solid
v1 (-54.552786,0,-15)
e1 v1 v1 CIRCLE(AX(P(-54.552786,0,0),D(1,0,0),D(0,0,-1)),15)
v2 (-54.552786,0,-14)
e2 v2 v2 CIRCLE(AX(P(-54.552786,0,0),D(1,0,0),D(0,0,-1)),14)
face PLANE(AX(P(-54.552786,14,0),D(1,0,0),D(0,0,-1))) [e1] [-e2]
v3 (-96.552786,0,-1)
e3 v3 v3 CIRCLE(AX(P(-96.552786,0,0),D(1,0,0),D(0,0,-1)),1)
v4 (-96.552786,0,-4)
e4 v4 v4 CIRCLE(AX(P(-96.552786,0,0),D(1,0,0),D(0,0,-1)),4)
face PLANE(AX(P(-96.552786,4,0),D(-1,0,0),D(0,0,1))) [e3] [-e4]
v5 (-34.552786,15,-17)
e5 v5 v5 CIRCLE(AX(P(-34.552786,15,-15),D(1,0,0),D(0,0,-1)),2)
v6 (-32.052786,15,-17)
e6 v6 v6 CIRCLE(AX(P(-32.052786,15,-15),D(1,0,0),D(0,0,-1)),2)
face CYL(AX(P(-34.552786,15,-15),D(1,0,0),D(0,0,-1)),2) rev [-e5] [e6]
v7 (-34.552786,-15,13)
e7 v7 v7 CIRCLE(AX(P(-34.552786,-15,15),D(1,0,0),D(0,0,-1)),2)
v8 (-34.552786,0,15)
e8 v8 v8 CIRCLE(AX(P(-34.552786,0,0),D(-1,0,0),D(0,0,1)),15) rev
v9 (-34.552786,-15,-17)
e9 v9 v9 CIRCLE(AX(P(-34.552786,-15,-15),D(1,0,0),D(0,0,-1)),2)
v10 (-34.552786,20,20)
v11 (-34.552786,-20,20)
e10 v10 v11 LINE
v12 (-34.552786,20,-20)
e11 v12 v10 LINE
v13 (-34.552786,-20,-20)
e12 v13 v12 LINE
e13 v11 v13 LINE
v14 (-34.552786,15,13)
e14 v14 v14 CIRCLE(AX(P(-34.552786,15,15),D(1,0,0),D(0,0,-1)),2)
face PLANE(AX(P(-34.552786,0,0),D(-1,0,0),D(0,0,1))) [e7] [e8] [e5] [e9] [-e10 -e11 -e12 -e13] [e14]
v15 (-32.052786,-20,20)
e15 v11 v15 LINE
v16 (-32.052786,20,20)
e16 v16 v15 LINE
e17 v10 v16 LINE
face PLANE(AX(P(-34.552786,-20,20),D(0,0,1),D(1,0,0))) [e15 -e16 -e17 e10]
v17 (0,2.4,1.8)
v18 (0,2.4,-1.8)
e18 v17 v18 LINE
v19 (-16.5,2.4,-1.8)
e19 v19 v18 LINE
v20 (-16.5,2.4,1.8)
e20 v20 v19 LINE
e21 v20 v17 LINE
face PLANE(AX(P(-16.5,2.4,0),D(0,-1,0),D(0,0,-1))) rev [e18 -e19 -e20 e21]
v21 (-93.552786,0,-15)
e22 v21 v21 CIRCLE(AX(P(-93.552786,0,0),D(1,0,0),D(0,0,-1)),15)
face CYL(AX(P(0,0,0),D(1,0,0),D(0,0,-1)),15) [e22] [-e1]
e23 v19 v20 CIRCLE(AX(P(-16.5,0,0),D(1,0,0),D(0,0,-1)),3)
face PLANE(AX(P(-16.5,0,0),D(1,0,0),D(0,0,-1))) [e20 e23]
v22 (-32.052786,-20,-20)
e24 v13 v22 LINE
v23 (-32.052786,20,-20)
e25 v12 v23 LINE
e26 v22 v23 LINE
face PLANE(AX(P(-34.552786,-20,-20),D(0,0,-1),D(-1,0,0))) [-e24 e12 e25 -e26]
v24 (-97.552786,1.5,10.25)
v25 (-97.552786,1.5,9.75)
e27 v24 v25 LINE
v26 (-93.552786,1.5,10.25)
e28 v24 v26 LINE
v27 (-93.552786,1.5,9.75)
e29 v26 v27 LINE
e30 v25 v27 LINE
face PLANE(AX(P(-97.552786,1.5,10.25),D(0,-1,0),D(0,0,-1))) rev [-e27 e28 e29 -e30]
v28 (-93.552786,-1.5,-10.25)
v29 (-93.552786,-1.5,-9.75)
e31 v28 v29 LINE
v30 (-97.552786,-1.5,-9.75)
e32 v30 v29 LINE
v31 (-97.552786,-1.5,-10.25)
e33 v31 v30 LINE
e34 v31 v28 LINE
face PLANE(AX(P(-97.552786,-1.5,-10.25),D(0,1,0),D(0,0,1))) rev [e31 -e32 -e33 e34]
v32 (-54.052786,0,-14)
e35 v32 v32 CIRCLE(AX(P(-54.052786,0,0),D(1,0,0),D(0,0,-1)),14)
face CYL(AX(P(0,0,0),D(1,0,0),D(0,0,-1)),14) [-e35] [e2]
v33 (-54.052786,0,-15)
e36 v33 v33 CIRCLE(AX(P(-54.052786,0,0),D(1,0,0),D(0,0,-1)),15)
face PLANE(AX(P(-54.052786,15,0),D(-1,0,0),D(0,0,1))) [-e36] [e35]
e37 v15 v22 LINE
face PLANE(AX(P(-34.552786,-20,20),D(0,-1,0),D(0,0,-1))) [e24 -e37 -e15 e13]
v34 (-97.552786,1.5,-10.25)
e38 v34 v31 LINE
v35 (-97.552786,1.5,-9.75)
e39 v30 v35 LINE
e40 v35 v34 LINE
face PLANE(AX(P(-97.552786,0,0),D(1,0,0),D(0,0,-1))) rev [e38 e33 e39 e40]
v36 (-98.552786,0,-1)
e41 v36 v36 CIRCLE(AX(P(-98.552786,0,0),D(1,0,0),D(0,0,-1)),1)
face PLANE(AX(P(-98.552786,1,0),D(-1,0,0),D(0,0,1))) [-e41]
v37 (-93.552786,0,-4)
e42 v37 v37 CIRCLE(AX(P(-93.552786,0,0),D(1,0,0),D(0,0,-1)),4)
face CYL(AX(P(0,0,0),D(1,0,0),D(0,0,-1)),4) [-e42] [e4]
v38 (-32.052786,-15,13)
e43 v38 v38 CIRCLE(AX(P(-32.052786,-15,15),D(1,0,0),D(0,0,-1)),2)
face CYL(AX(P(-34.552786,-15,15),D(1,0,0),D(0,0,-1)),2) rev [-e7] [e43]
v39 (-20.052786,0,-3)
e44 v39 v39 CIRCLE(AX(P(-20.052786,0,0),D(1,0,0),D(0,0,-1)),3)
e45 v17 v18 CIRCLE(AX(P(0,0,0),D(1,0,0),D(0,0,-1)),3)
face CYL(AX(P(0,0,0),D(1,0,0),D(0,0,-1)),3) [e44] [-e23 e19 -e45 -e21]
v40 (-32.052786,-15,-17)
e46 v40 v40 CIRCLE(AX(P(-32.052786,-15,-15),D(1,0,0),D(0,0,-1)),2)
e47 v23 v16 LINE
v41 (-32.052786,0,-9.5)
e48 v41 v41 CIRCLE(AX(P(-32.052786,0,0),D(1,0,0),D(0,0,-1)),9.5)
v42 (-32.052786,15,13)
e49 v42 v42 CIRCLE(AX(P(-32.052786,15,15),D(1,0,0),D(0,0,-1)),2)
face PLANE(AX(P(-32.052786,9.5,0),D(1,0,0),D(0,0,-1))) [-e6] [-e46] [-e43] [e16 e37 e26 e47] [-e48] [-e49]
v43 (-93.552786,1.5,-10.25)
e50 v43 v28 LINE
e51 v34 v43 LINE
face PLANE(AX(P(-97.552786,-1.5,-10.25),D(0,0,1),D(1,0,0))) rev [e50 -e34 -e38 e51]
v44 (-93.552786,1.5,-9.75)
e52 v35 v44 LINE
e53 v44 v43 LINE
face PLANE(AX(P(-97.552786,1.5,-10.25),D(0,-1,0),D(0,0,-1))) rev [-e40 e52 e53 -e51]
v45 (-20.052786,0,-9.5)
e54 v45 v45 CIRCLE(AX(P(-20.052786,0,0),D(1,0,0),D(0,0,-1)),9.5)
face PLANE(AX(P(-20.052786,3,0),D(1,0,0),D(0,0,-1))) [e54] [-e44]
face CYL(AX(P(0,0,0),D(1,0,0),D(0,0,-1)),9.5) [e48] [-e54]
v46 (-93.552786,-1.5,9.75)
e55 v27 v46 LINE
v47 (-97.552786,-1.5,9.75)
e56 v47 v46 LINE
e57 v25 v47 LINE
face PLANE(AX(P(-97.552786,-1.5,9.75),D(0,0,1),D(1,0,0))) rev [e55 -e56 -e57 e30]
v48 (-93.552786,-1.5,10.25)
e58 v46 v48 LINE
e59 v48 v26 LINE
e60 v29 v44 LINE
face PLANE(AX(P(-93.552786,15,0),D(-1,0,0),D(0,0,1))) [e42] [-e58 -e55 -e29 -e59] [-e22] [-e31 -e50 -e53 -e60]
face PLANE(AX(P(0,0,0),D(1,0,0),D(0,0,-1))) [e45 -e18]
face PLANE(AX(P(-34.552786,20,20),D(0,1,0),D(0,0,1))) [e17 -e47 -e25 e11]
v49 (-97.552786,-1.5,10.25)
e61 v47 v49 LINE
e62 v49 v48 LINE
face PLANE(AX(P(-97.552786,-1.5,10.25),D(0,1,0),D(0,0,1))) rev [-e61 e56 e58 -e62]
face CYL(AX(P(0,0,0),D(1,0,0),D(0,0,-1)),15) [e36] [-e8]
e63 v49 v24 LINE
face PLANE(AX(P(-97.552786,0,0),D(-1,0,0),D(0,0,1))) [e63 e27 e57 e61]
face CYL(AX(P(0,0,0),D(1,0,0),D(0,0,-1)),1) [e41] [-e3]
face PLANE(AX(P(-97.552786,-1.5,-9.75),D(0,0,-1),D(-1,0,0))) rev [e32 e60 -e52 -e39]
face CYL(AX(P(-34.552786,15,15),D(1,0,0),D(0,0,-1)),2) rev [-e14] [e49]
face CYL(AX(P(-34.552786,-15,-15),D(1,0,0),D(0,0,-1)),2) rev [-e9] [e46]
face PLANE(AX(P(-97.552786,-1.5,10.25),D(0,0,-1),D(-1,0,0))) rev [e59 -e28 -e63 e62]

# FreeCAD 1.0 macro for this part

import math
import FreeCAD as App
import Part
import Sketcher
from FreeCAD import Vector
Q = App.Units.Quantity

doc = App.newDocument("Part")
body = doc.addObject("PartDesign::Body", "Body")

# Sketch on XY plane
sketch1 = body.newObject("Sketcher::SketchObject", "Sketch")
sketch1.AttachmentSupport = (doc.getObject("XY_Plane"), [""])
sketch1.MapMode = "FlatFace"
sketch1.addGeometry(Part.LineSegment(Vector(-98.552786, 0, 0), Vector(0, 0, 0)), False)
sketch1.addGeometry(Part.LineSegment(Vector(0, 0, 0), Vector(0, 3, 0)), False)
sketch1.addGeometry(Part.LineSegment(Vector(0, 3, 0), Vector(-20.052786, 3, 0)), False)
sketch1.addGeometry(Part.LineSegment(Vector(-20.052786, 3, 0), Vector(-20.052786, 9.5, 0)), False)
sketch1.addGeometry(Part.LineSegment(Vector(-20.052786, 9.5, 0), Vector(-32.052786, 9.5, 0)), False)
sketch1.addGeometry(Part.LineSegment(Vector(-32.052786, 9.5, 0), Vector(-32.052786, 15, 0)), False)
sketch1.addGeometry(Part.LineSegment(Vector(-32.052786, 15, 0), Vector(-54.052786, 15, 0)), False)
sketch1.addGeometry(Part.LineSegment(Vector(-54.052786, 15, 0), Vector(-54.052786, 14, 0)), False)
sketch1.addGeometry(Part.LineSegment(Vector(-54.052786, 14, 0), Vector(-54.552786, 14, 0)), False)
sketch1.addGeometry(Part.LineSegment(Vector(-54.552786, 14, 0), Vector(-54.552786, 15, 0)), False)
sketch1.addGeometry(Part.LineSegment(Vector(-54.552786, 15, 0), Vector(-93.552786, 15, 0)), False)
sketch1.addGeometry(Part.LineSegment(Vector(-93.552786, 15, 0), Vector(-93.552786, 4, 0)), False)
sketch1.addGeometry(Part.LineSegment(Vector(-93.552786, 4, 0), Vector(-96.552786, 4, 0)), False)
sketch1.addGeometry(Part.LineSegment(Vector(-96.552786, 4, 0), Vector(-96.552786, 1, 0)), False)
sketch1.addGeometry(Part.LineSegment(Vector(-96.552786, 1, 0), Vector(-98.552786, 1, 0)), False)
sketch1.addGeometry(Part.LineSegment(Vector(-98.552786, 1, 0), Vector(-98.552786, 0, 0)), False)
sketch1.addConstraint(Sketcher.Constraint("Coincident", 0, 2, 1, 1))
sketch1.addConstraint(Sketcher.Constraint("Coincident", 1, 2, 2, 1))
sketch1.addConstraint(Sketcher.Constraint("Coincident", 2, 2, 3, 1))
sketch1.addConstraint(Sketcher.Constraint("Coincident", 3, 2, 4, 1))
sketch1.addConstraint(Sketcher.Constraint("Coincident", 4, 2, 5, 1))
sketch1.addConstraint(Sketcher.Constraint("Coincident", 5, 2, 6, 1))
sketch1.addConstraint(Sketcher.Constraint("Coincident", 6, 2, 7, 1))
sketch1.addConstraint(Sketcher.Constraint("Coincident", 7, 2, 8, 1))
sketch1.addConstraint(Sketcher.Constraint("Coincident", 8, 2, 9, 1))
sketch1.addConstraint(Sketcher.Constraint("Coincident", 9, 2, 10, 1))
sketch1.addConstraint(Sketcher.Constraint("Coincident", 10, 2, 11, 1))
sketch1.addConstraint(Sketcher.Constraint("Coincident", 11, 2, 12, 1))
sketch1.addConstraint(Sketcher.Constraint("Coincident", 12, 2, 13, 1))
sketch1.addConstraint(Sketcher.Constraint("Coincident", 13, 2, 14, 1))
sketch1.addConstraint(Sketcher.Constraint("Coincident", 14, 2, 15, 1))
sketch1.addConstraint(Sketcher.Constraint("Coincident", 15, 2, 0, 1))
sketch1.addConstraint(Sketcher.Constraint("Horizontal", 0))
sketch1.addConstraint(Sketcher.Constraint("Vertical", 1))
sketch1.addConstraint(Sketcher.Constraint("Horizontal", 2))
sketch1.addConstraint(Sketcher.Constraint("Vertical", 3))
sketch1.addConstraint(Sketcher.Constraint("Horizontal", 4))
sketch1.addConstraint(Sketcher.Constraint("Vertical", 5))
sketch1.addConstraint(Sketcher.Constraint("Horizontal", 6))
sketch1.addConstraint(Sketcher.Constraint("Vertical", 7))
sketch1.addConstraint(Sketcher.Constraint("Horizontal", 8))
sketch1.addConstraint(Sketcher.Constraint("Vertical", 9))
sketch1.addConstraint(Sketcher.Constraint("Horizontal", 10))
sketch1.addConstraint(Sketcher.Constraint("Vertical", 11))
sketch1.addConstraint(Sketcher.Constraint("Horizontal", 12))
sketch1.addConstraint(Sketcher.Constraint("Vertical", 13))
sketch1.addConstraint(Sketcher.Constraint("Horizontal", 14))
sketch1.addConstraint(Sketcher.Constraint("Vertical", 15))
sketch1.addConstraint(Sketcher.Constraint("Coincident", 0, 2, -1, 1))
sketch1.addConstraint(Sketcher.Constraint("Horizontal", 6, 2, 9, 2))
sketch1.addConstraint(Sketcher.Constraint("Equal", 12, 1))
sketch1.addConstraint(Sketcher.Constraint("Equal", 1, 13))
sketch1.addConstraint(Sketcher.Constraint("Equal", 9, 15))
sketch1.addConstraint(Sketcher.Constraint("DistanceX", 4, 2, 4, 1, Q("12 mm")))
sketch1.addConstraint(Sketcher.Constraint("DistanceX", 6, 2, 6, 1, Q("22 mm")))
sketch1.addConstraint(Sketcher.Constraint("DistanceX", 10, 2, 10, 1, Q("39 mm")))
sketch1.addConstraint(Sketcher.Constraint("DistanceX", 12, 2, 12, 1, Q("3 mm")))
sketch1.addConstraint(Sketcher.Constraint("DistanceX", 14, 2, 14, 1, Q("2 mm")))
sketch1.addConstraint(Sketcher.Constraint("DistanceY", 7, 2, 7, 1, Q("1 mm")))
sketch1.addConstraint(Sketcher.Constraint("DistanceY", 11, 2, 11, 1, Q("11 mm")))
sketch1.addConstraint(Sketcher.Constraint("DistanceX", 8, 2, 8, 1, Q("0.5 mm")))
sketch1.addConstraint(Sketcher.Constraint("DistanceY", 3, 1, 3, 2, Q("6.5 mm")))
sketch1.addConstraint(Sketcher.Constraint("DistanceX", 0, 1, 0, 2, Q("98.552786 mm")))
revolution = body.newObject("PartDesign::Revolution", "Revolution")
revolution.Profile = sketch1
revolution.ReferenceAxis = (sketch1, ["H_Axis"])
revolution.Angle = 360

# Sketch on YZ plane
sketch2 = body.newObject("Sketcher::SketchObject", "Sketch001")
sketch2.AttachmentSupport = (doc.getObject("YZ_Plane"), [""])
sketch2.MapMode = "FlatFace"
sketch2.AttachmentOffset = App.Placement(Vector(0, 0, -32.052786), App.Rotation())
sketch2.addGeometry(Part.LineSegment(Vector(20, 20, 0), Vector(-20, 20, 0)), False)
sketch2.addGeometry(Part.LineSegment(Vector(-20, 20, 0), Vector(-20, -20, 0)), False)
sketch2.addGeometry(Part.LineSegment(Vector(-20, -20, 0), Vector(20, -20, 0)), False)
sketch2.addGeometry(Part.LineSegment(Vector(20, -20, 0), Vector(20, 20, 0)), False)
sketch2.addConstraint(Sketcher.Constraint("Coincident", 0, 2, 1, 1))
sketch2.addConstraint(Sketcher.Constraint("Coincident", 1, 2, 2, 1))
sketch2.addConstraint(Sketcher.Constraint("Coincident", 2, 2, 3, 1))
sketch2.addConstraint(Sketcher.Constraint("Coincident", 3, 2, 0, 1))
sketch2.addConstraint(Sketcher.Constraint("Horizontal", 0))
sketch2.addConstraint(Sketcher.Constraint("Vertical", 1))
sketch2.addConstraint(Sketcher.Constraint("Horizontal", 2))
sketch2.addConstraint(Sketcher.Constraint("Vertical", 3))
sketch2.addConstraint(Sketcher.Constraint("Symmetric", 0, 2, 2, 2, -1, 1))
sketch2.addConstraint(Sketcher.Constraint("Equal", 2, 1))
sketch2.addConstraint(Sketcher.Constraint("DistanceX", 0, 2, 0, 1, Q("40 mm")))
pad1 = body.newObject("PartDesign::Pad", "Pad")
pad1.Profile = sketch2
pad1.Length = 2.5
pad1.Reversed = True

# Sketch on YZ plane
sketch3 = body.newObject("Sketcher::SketchObject", "Sketch002")
sketch3.AttachmentSupport = (doc.getObject("YZ_Plane"), [""])
sketch3.MapMode = "FlatFace"
sketch3.AttachmentOffset = App.Placement(Vector(0, 0, -32.052786), App.Rotation())
sketch3.addGeometry(Part.Circle(Vector(15, 15, 0), Vector(0, 0, 1), 2), False)
sketch3.addGeometry(Part.Circle(Vector(15, -15, 0), Vector(0, 0, 1), 2), False)
sketch3.addGeometry(Part.Circle(Vector(-15, 15, 0), Vector(0, 0, 1), 2), False)
sketch3.addGeometry(Part.Circle(Vector(-15, -15, 0), Vector(0, 0, 1), 2), False)
sketch3.addConstraint(Sketcher.Constraint("Equal", 0, 1))
sketch3.addConstraint(Sketcher.Constraint("Equal", 1, 2))
sketch3.addConstraint(Sketcher.Constraint("Equal", 2, 3))
sketch3.addConstraint(Sketcher.Constraint("Symmetric", 1, 3, 2, 3, -1, 1))
sketch3.addConstraint(Sketcher.Constraint("Symmetric", 0, 3, 3, 3, -1, 1))
sketch3.addConstraint(Sketcher.Constraint("Symmetric", 0, 3, 2, 3, -2))
sketch3.addConstraint(Sketcher.Constraint("Diameter", 0, Q("4 mm")))
sketch3.addConstraint(Sketcher.Constraint("DistanceX", -1, 1, 0, 3, Q("15 mm")))
sketch3.addConstraint(Sketcher.Constraint("DistanceY", -1, 1, 0, 3, Q("15 mm")))
pocket1 = body.newObject("PartDesign::Pocket", "Pocket")
pocket1.Profile = sketch3
pocket1.Length = 2.5

# Sketch on YZ plane
sketch4 = body.newObject("Sketcher::SketchObject", "Sketch003")
sketch4.AttachmentSupport = (doc.getObject("YZ_Plane"), [""])
sketch4.MapMode = "FlatFace"
sketch4.addGeometry(Part.LineSegment(Vector(2.4, 1.8, 0), Vector(2.4, -1.8, 0)), False)
sketch4.addGeometry(Part.ArcOfCircle(Part.Circle(Vector(0, 0, 0), Vector(0, 0, 1), 3), math.radians(-36.869898), math.radians(36.869898)), False)
sketch4.addConstraint(Sketcher.Constraint("Coincident", 0, 1, 1, 2))
sketch4.addConstraint(Sketcher.Constraint("Coincident", 1, 1, 0, 2))
sketch4.addConstraint(Sketcher.Constraint("Vertical", 0))
sketch4.addConstraint(Sketcher.Constraint("Coincident", 1, 3, -1, 1))
sketch4.addConstraint(Sketcher.Constraint("Radius", 1, Q("3 mm")))
sketch4.addConstraint(Sketcher.Constraint("DistanceY", 0, 2, 0, 1, Q("3.6 mm")))
pocket2 = body.newObject("PartDesign::Pocket", "Pocket001")
pocket2.Profile = sketch4
pocket2.Length = 16.5

# Sketch on YZ plane
sketch5 = body.newObject("Sketcher::SketchObject", "Sketch004")
sketch5.AttachmentSupport = (doc.getObject("YZ_Plane"), [""])
sketch5.MapMode = "FlatFace"
sketch5.AttachmentOffset = App.Placement(Vector(0, 0, -93.552786), App.Rotation())
sketch5.addGeometry(Part.LineSegment(Vector(1.5, -10.25, 0), Vector(-1.5, -10.25, 0)), False)
sketch5.addGeometry(Part.LineSegment(Vector(-1.5, -10.25, 0), Vector(-1.5, -9.75, 0)), False)
sketch5.addGeometry(Part.LineSegment(Vector(-1.5, -9.75, 0), Vector(1.5, -9.75, 0)), False)
sketch5.addGeometry(Part.LineSegment(Vector(1.5, -9.75, 0), Vector(1.5, -10.25, 0)), False)
sketch5.addGeometry(Part.LineSegment(Vector(1.5, 9.75, 0), Vector(-1.5, 9.75, 0)), False)
sketch5.addGeometry(Part.LineSegment(Vector(-1.5, 9.75, 0), Vector(-1.5, 10.25, 0)), False)
sketch5.addGeometry(Part.LineSegment(Vector(-1.5, 10.25, 0), Vector(1.5, 10.25, 0)), False)
sketch5.addGeometry(Part.LineSegment(Vector(1.5, 10.25, 0), Vector(1.5, 9.75, 0)), False)
sketch5.addConstraint(Sketcher.Constraint("Coincident", 0, 2, 1, 1))
sketch5.addConstraint(Sketcher.Constraint("Coincident", 1, 2, 2, 1))
sketch5.addConstraint(Sketcher.Constraint("Coincident", 2, 2, 3, 1))
sketch5.addConstraint(Sketcher.Constraint("Coincident", 3, 2, 0, 1))
sketch5.addConstraint(Sketcher.Constraint("Coincident", 4, 2, 5, 1))
sketch5.addConstraint(Sketcher.Constraint("Coincident", 5, 2, 6, 1))
sketch5.addConstraint(Sketcher.Constraint("Coincident", 6, 2, 7, 1))
sketch5.addConstraint(Sketcher.Constraint("Coincident", 7, 2, 4, 1))
sketch5.addConstraint(Sketcher.Constraint("Horizontal", 0))
sketch5.addConstraint(Sketcher.Constraint("Vertical", 1))
sketch5.addConstraint(Sketcher.Constraint("Horizontal", 2))
sketch5.addConstraint(Sketcher.Constraint("Vertical", 3))
sketch5.addConstraint(Sketcher.Constraint("Horizontal", 4))
sketch5.addConstraint(Sketcher.Constraint("Vertical", 5))
sketch5.addConstraint(Sketcher.Constraint("Horizontal", 6))
sketch5.addConstraint(Sketcher.Constraint("Vertical", 7))
sketch5.addConstraint(Sketcher.Constraint("Symmetric", 2, 2, 4, 2, -1, 1))
sketch5.addConstraint(Sketcher.Constraint("Symmetric", 0, 2, 6, 2, -1, 1))
sketch5.addConstraint(Sketcher.Constraint("Vertical", 1, 2, 4, 2))
sketch5.addConstraint(Sketcher.Constraint("DistanceX", 0, 2, 0, 1, Q("3 mm")))
sketch5.addConstraint(Sketcher.Constraint("DistanceY", 1, 1, 1, 2, Q("0.5 mm")))
sketch5.addConstraint(Sketcher.Constraint("DistanceY", 0, 2, 4, 2, Q("20 mm")))
pad2 = body.newObject("PartDesign::Pad", "Pad001")
pad2.Profile = sketch5
pad2.Length = 4
pad2.Reversed = True

doc.recompute()
